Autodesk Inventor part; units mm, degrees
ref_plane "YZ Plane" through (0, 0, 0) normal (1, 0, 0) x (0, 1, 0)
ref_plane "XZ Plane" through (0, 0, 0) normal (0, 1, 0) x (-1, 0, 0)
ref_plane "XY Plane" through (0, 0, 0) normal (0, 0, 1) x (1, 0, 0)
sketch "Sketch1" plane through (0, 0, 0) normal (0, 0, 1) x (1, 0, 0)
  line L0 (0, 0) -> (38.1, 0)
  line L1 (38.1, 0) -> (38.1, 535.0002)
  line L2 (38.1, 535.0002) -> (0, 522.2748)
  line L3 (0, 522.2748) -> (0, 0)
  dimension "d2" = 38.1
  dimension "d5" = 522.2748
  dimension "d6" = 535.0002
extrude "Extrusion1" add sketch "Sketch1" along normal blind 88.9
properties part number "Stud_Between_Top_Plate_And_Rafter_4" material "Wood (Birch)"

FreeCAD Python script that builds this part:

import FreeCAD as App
import Part
import Sketcher

V = App.Vector
Q = App.Units.Quantity


def add_polygon(sketch, points):
    """Adds a closed chain of lines whose ends are joined by coincident constraints."""
    first, n = sketch.GeometryCount, len(points)
    for a, b in zip(points, points[1:] + points[:1]):
        sketch.addGeometry(Part.LineSegment(App.Vector(*a, 0), App.Vector(*b, 0)), False)
    for i in range(n):
        sketch.addConstraint(Sketcher.Constraint("Coincident", first + i, 2, first + (i + 1) % n, 1))

doc = App.newDocument("Part")
body = doc.addObject("PartDesign::Body", "Body")

# Sketch on XY plane
sketch1 = doc.addObject("Sketcher::SketchObject", "Sketch")
body.addObject(sketch1)
sketch1.AttachmentSupport = (doc.XY_Plane, [""])
sketch1.MapMode = "FlatFace"
add_polygon(sketch1, [(0, 522), (0, 0), (38, 0), (38, 535)])  # lines 0-3
sketch1.addConstraint(Sketcher.Constraint("Vertical", 0))
sketch1.addConstraint(Sketcher.Constraint("Horizontal", 1))
sketch1.addConstraint(Sketcher.Constraint("Vertical", 2))
sketch1.addConstraint(Sketcher.Constraint("Coincident", 0, 2, -1, 1))
sketch1.addConstraint(Sketcher.Constraint("DistanceX", 1, 1, 1, 2, Q("1.5 in")))
sketch1.addConstraint(Sketcher.Constraint("DistanceY", 0, 2, 0, 1, Q("20.562 in")))
sketch1.addConstraint(Sketcher.Constraint("DistanceY", 2, 1, 2, 2, Q("21.063 in")))
pad1 = doc.addObject("PartDesign::Pad", "Pad")
body.addObject(pad1)
pad1.Profile = sketch1
pad1.Length = Q("3.5 in")

doc.recompute()
